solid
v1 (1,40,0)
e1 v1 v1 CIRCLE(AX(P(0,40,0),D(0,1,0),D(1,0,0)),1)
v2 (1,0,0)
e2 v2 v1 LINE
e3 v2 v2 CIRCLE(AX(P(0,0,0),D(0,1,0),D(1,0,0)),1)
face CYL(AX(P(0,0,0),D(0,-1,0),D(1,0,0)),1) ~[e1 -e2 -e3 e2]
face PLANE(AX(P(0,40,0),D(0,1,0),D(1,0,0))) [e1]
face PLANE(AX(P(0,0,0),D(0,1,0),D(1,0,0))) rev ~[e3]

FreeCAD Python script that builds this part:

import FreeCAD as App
import Part
import Sketcher

doc = App.newDocument("Part")
body = doc.addObject("PartDesign::Body", "Body")

sketch1 = doc.addObject("Sketcher::SketchObject", "Sketch")
body.addObject(sketch1)
sketch1.AttachmentSupport = (doc.XZ_Plane, [""])
sketch1.MapMode = "FlatFace"
sketch1.addGeometry(Part.Circle(App.Vector(0, 0, 0), App.Vector(0, 0, 1), 1), False)
sketch1.addConstraint([
    Sketcher.Constraint("Coincident", 0, 3, -1, 1),
    Sketcher.Constraint("Diameter", 0, 2.0),
])
pad1 = doc.addObject("PartDesign::Pad", "Pad")
body.addObject(pad1)
pad1.Profile = sketch1
pad1.Length = 40
pad1.Reversed = True

doc.recompute()
